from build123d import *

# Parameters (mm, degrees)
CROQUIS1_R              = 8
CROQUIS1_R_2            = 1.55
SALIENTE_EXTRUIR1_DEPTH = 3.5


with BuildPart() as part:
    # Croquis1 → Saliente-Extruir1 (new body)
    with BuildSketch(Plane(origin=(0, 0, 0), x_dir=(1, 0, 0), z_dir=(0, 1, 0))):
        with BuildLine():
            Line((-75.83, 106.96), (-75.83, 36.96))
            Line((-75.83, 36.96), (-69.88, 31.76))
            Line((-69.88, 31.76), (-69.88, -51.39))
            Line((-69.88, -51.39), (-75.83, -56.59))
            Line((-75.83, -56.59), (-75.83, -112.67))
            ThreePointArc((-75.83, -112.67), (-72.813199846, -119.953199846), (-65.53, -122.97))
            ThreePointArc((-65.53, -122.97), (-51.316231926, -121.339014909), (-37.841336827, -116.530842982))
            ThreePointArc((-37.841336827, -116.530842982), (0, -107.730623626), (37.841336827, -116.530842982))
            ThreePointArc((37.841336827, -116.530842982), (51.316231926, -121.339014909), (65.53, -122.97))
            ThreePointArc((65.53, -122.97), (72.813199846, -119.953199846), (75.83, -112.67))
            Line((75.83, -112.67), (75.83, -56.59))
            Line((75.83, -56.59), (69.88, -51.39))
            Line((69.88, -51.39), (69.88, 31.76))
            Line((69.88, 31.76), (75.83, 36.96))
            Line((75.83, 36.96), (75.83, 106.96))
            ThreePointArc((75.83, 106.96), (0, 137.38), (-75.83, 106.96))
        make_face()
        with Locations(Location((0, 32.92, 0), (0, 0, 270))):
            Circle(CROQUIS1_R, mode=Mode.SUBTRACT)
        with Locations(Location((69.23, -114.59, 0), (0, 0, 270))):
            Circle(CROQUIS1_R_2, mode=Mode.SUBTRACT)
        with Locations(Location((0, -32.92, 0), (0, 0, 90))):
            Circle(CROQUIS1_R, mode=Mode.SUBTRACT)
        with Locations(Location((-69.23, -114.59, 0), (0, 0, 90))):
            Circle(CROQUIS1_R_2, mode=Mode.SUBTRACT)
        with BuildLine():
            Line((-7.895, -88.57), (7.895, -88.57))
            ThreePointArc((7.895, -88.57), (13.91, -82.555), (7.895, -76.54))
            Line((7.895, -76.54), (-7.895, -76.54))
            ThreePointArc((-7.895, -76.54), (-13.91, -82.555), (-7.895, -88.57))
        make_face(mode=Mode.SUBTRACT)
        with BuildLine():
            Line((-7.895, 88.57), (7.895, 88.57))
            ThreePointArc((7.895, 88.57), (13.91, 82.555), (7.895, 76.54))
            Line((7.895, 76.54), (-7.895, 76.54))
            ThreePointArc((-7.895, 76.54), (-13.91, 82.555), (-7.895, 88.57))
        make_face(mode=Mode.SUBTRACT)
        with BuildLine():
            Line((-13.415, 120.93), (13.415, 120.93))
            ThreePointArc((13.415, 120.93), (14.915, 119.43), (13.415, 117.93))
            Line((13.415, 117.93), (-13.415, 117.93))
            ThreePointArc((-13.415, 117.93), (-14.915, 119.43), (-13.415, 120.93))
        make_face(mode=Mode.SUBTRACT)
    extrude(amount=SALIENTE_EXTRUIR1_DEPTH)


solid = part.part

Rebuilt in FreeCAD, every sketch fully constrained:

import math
import FreeCAD as App
import Part
import Sketcher

V = App.Vector

doc = App.newDocument("Part")
body = doc.addObject("PartDesign::Body", "Body")

# Sketch on XZ plane
sketch1 = body.newObject("Sketcher::SketchObject", "Sketch")
sketch1.AttachmentSupport = (doc.getObject("XZ_Plane"), [""])
sketch1.MapMode = "FlatFace"
sketch1.addGeometry([
    Part.LineSegment(V(-75.8, -107, 0), V(-75.8, -37, 0)),  # 0
    Part.LineSegment(V(-75.8, -37, 0), V(-69.9, -31.8, 0)),  # 1
    Part.LineSegment(V(-69.9, -31.8, 0), V(-69.9, 51.4, 0)),  # 2
    Part.LineSegment(V(-69.9, 51.4, 0), V(-75.8, 56.6, 0)),  # 3
    Part.LineSegment(V(-75.8, 56.6, 0), V(-75.8, 112.7, 0)),  # 4
    Part.ArcOfCircle(Part.Circle(V(-65.5, 112.7, 0), V(0, 0, 1), 10.3), math.radians(90), math.radians(180)),  # 5
    Part.ArcOfCircle(Part.Circle(V(-65.5, 60.2, 0), V(0, 0, 1), 62.8), math.radians(64), math.radians(90)),  # 6
    Part.ArcOfCircle(Part.Circle(V(0, 193.5, 0), V(0, 0, 1), 85.8), math.radians(-116), math.radians(-64)),  # 7
    Part.ArcOfCircle(Part.Circle(V(65.5, 60.2, 0), V(0, 0, 1), 62.8), math.radians(90), math.radians(116)),  # 8
    Part.ArcOfCircle(Part.Circle(V(65.5, 112.7, 0), V(0, 0, 1), 10.3), math.radians(0), math.radians(90)),  # 9
    Part.LineSegment(V(75.8, 112.7, 0), V(75.8, 56.6, 0)),  # 10
    Part.LineSegment(V(75.8, 56.6, 0), V(69.9, 51.4, 0)),  # 11
    Part.LineSegment(V(69.9, 51.4, 0), V(69.9, -31.8, 0)),  # 12
    Part.LineSegment(V(69.9, -31.8, 0), V(75.8, -37, 0)),  # 13
    Part.LineSegment(V(75.8, -37, 0), V(75.8, -107, 0)),  # 14
    Part.ArcOfCircle(Part.Circle(V(0, -27.7, 0), V(0, 0, 1), 109.7), math.radians(-134), math.radians(-46)),  # 15
    Part.Circle(V(-69.2, 114.6, 0), V(0, 0, 1), 1.6),  # 16
    Part.LineSegment(V(7.9, 88.6, 0), V(-7.9, 88.6, 0)),  # 17
    Part.ArcOfCircle(Part.Circle(V(-7.9, 82.6, 0), V(0, 0, 1), 6), math.radians(90), math.radians(270)),  # 18
    Part.LineSegment(V(-7.9, 76.5, 0), V(7.9, 76.5, 0)),  # 19
    Part.ArcOfCircle(Part.Circle(V(7.9, 82.6, 0), V(0, 0, 1), 6), math.radians(-90), math.radians(90)),  # 20
    Part.Circle(V(0, 32.9, 0), V(0, 0, 1), 8),  # 21
    Part.Circle(V(69.2, 114.6, 0), V(0, 0, 1), 1.6),  # 22
    Part.Circle(V(0, -32.9, 0), V(0, 0, 1), 8),  # 23
    Part.ArcOfCircle(Part.Circle(V(-7.9, -82.6, 0), V(0, 0, 1), 6), math.radians(90), math.radians(270)),  # 24
    Part.LineSegment(V(-7.9, -88.6, 0), V(7.9, -88.6, 0)),  # 25
    Part.ArcOfCircle(Part.Circle(V(7.9, -82.6, 0), V(0, 0, 1), 6), math.radians(-90), math.radians(90)),  # 26
    Part.LineSegment(V(7.9, -76.5, 0), V(-7.9, -76.5, 0)),  # 27
    Part.ArcOfCircle(Part.Circle(V(-13.4, -119.4, 0), V(0, 0, 1), 1.5), math.radians(90), math.radians(270)),  # 28
    Part.LineSegment(V(-13.4, -120.9, 0), V(13.4, -120.9, 0)),  # 29
    Part.ArcOfCircle(Part.Circle(V(13.4, -119.4, 0), V(0, 0, 1), 1.5), math.radians(-90), math.radians(90)),  # 30
    Part.LineSegment(V(13.4, -117.9, 0), V(-13.4, -117.9, 0)),  # 31
], False)
sketch1.addConstraint([
    Sketcher.Constraint("Coincident", 0, 2, 1, 1),
    Sketcher.Constraint("Coincident", 1, 2, 2, 1),
    Sketcher.Constraint("Coincident", 2, 2, 3, 1),
    Sketcher.Constraint("Coincident", 3, 2, 4, 1),
    Sketcher.Constraint("Tangent", 4, 2, 5, 2),
    Sketcher.Constraint("Tangent", 5, 1, 6, 2),
    Sketcher.Constraint("Tangent", 6, 1, 7, 1),
    Sketcher.Constraint("Tangent", 7, 2, 8, 2),
    Sketcher.Constraint("Tangent", 8, 1, 9, 2),
    Sketcher.Constraint("Tangent", 9, 1, 10, 1),
    Sketcher.Constraint("Coincident", 10, 2, 11, 1),
    Sketcher.Constraint("Coincident", 11, 2, 12, 1),
    Sketcher.Constraint("Coincident", 12, 2, 13, 1),
    Sketcher.Constraint("Coincident", 13, 2, 14, 1),
    Sketcher.Constraint("Coincident", 14, 2, 15, 2),
    Sketcher.Constraint("Coincident", 15, 1, 0, 1),
    Sketcher.Constraint("Tangent", 17, 2, 18, 1),
    Sketcher.Constraint("Tangent", 18, 2, 19, 1),
    Sketcher.Constraint("Tangent", 19, 2, 20, 1),
    Sketcher.Constraint("Tangent", 20, 2, 17, 1),
    Sketcher.Constraint("Tangent", 24, 2, 25, 1),
    Sketcher.Constraint("Tangent", 25, 2, 26, 1),
    Sketcher.Constraint("Tangent", 26, 2, 27, 1),
    Sketcher.Constraint("Tangent", 27, 2, 24, 1),
    Sketcher.Constraint("Tangent", 28, 2, 29, 1),
    Sketcher.Constraint("Tangent", 29, 2, 30, 1),
    Sketcher.Constraint("Tangent", 30, 2, 31, 1),
    Sketcher.Constraint("Tangent", 31, 2, 28, 1),
    Sketcher.Constraint("Vertical", 0),
    Sketcher.Constraint("Vertical", 2),
    Sketcher.Constraint("Vertical", 4),
    Sketcher.Constraint("Vertical", 10),
    Sketcher.Constraint("Vertical", 12),
    Sketcher.Constraint("Vertical", 14),
    Sketcher.Constraint("Horizontal", 17),
    Sketcher.Constraint("Horizontal", 19),
    Sketcher.Constraint("Horizontal", 25),
    Sketcher.Constraint("Horizontal", 27),
    Sketcher.Constraint("Horizontal", 29),
    Sketcher.Constraint("Horizontal", 31),
    Sketcher.Constraint("Equal", 6, 8),
    Sketcher.Constraint("Equal", 5, 9),
    Sketcher.Constraint("Equal", 16, 22),
    Sketcher.Constraint("Equal", 21, 23),
    Sketcher.Constraint("Equal", 20, 24),
    Sketcher.Constraint("Symmetric", 21, 3, 23, 3, -1, 1),
    Sketcher.Constraint("Symmetric", 20, 3, 24, 3, -1, 1),
    Sketcher.Constraint("Symmetric", 6, 3, 8, 3, -2),
    Sketcher.Constraint("Symmetric", 16, 3, 22, 3, -2),
    Sketcher.Constraint("Symmetric", 3, 2, 10, 2, -2),
    Sketcher.Constraint("Symmetric", 2, 2, 11, 2, -2),
    Sketcher.Constraint("Symmetric", 0, 2, 13, 2, -2),
    Sketcher.Constraint("PointOnObject", 15, 3, -2),
    Sketcher.Constraint("PointOnObject", 21, 3, -2),
    Sketcher.Constraint("Parallel", 1, 11),
    Sketcher.Constraint("Parallel", 3, 13),
    Sketcher.Constraint("Vertical", 5, 3, 6, 3),
    Sketcher.Constraint("Vertical", 18, 3, 24, 3),
    Sketcher.Constraint("Vertical", 20, 3, 26, 3),
    Sketcher.Constraint("Vertical", 0, 2, 3, 2),
    Sketcher.Constraint("Diameter", 21, 16.0),
    Sketcher.Constraint("Diameter", 16, 3.1),
    Sketcher.Constraint("Radius", 5, 10.3),
    Sketcher.Constraint("Radius", 28, 1.5),
    Sketcher.Constraint("DistanceY", 0, 1, 0, 2, 70.0),
    Sketcher.Constraint("Radius", 18, 6.015),
    Sketcher.Constraint("DistanceY", 3, 2, 16, 3, 58.0),
    Sketcher.Constraint("DistanceX", 17, 2, 17, 1, 15.79),
    Sketcher.Constraint("DistanceX", 29, 1, 29, 2, 26.83),
    Sketcher.Constraint("DistanceY", 2, 1, 2, 2, 83.15),
    Sketcher.Constraint("DistanceY", 4, 1, 4, 2, 56.08),
    Sketcher.Constraint("DistanceX", 16, 3, 5, 3, 3.7),
    Sketcher.Constraint("DistanceY", 0, 2, 1, 2, 5.2),
    Sketcher.Constraint("DistanceX", 5, 3, -1, 1, 65.53),
    Sketcher.Constraint("DistanceY", -1, 1, 5, 3, 112.67),
    Sketcher.Constraint("DistanceY", -1, 1, 21, 3, 32.92),
    Sketcher.Constraint("DistanceY", 28, 3, -1, 1, 119.43),
    Sketcher.Constraint("DistanceX", 1, 2, -1, 1, 69.88),
    Sketcher.Constraint("DistanceY", -1, 1, 17, 2, 88.57),
    Sketcher.Constraint("Radius", 7, 85.75983),
    Sketcher.Constraint("DistanceX", 28, 3, 24, 3, 5.52),
    Sketcher.Constraint("Radius", 6, 62.750824),
    Sketcher.Constraint("Radius", 15, 109.723296),
])
pad1 = body.newObject("PartDesign::Pad", "Pad")
pad1.Profile = sketch1
pad1.Length = 3.5
pad1.Reversed = True

doc.recompute()
